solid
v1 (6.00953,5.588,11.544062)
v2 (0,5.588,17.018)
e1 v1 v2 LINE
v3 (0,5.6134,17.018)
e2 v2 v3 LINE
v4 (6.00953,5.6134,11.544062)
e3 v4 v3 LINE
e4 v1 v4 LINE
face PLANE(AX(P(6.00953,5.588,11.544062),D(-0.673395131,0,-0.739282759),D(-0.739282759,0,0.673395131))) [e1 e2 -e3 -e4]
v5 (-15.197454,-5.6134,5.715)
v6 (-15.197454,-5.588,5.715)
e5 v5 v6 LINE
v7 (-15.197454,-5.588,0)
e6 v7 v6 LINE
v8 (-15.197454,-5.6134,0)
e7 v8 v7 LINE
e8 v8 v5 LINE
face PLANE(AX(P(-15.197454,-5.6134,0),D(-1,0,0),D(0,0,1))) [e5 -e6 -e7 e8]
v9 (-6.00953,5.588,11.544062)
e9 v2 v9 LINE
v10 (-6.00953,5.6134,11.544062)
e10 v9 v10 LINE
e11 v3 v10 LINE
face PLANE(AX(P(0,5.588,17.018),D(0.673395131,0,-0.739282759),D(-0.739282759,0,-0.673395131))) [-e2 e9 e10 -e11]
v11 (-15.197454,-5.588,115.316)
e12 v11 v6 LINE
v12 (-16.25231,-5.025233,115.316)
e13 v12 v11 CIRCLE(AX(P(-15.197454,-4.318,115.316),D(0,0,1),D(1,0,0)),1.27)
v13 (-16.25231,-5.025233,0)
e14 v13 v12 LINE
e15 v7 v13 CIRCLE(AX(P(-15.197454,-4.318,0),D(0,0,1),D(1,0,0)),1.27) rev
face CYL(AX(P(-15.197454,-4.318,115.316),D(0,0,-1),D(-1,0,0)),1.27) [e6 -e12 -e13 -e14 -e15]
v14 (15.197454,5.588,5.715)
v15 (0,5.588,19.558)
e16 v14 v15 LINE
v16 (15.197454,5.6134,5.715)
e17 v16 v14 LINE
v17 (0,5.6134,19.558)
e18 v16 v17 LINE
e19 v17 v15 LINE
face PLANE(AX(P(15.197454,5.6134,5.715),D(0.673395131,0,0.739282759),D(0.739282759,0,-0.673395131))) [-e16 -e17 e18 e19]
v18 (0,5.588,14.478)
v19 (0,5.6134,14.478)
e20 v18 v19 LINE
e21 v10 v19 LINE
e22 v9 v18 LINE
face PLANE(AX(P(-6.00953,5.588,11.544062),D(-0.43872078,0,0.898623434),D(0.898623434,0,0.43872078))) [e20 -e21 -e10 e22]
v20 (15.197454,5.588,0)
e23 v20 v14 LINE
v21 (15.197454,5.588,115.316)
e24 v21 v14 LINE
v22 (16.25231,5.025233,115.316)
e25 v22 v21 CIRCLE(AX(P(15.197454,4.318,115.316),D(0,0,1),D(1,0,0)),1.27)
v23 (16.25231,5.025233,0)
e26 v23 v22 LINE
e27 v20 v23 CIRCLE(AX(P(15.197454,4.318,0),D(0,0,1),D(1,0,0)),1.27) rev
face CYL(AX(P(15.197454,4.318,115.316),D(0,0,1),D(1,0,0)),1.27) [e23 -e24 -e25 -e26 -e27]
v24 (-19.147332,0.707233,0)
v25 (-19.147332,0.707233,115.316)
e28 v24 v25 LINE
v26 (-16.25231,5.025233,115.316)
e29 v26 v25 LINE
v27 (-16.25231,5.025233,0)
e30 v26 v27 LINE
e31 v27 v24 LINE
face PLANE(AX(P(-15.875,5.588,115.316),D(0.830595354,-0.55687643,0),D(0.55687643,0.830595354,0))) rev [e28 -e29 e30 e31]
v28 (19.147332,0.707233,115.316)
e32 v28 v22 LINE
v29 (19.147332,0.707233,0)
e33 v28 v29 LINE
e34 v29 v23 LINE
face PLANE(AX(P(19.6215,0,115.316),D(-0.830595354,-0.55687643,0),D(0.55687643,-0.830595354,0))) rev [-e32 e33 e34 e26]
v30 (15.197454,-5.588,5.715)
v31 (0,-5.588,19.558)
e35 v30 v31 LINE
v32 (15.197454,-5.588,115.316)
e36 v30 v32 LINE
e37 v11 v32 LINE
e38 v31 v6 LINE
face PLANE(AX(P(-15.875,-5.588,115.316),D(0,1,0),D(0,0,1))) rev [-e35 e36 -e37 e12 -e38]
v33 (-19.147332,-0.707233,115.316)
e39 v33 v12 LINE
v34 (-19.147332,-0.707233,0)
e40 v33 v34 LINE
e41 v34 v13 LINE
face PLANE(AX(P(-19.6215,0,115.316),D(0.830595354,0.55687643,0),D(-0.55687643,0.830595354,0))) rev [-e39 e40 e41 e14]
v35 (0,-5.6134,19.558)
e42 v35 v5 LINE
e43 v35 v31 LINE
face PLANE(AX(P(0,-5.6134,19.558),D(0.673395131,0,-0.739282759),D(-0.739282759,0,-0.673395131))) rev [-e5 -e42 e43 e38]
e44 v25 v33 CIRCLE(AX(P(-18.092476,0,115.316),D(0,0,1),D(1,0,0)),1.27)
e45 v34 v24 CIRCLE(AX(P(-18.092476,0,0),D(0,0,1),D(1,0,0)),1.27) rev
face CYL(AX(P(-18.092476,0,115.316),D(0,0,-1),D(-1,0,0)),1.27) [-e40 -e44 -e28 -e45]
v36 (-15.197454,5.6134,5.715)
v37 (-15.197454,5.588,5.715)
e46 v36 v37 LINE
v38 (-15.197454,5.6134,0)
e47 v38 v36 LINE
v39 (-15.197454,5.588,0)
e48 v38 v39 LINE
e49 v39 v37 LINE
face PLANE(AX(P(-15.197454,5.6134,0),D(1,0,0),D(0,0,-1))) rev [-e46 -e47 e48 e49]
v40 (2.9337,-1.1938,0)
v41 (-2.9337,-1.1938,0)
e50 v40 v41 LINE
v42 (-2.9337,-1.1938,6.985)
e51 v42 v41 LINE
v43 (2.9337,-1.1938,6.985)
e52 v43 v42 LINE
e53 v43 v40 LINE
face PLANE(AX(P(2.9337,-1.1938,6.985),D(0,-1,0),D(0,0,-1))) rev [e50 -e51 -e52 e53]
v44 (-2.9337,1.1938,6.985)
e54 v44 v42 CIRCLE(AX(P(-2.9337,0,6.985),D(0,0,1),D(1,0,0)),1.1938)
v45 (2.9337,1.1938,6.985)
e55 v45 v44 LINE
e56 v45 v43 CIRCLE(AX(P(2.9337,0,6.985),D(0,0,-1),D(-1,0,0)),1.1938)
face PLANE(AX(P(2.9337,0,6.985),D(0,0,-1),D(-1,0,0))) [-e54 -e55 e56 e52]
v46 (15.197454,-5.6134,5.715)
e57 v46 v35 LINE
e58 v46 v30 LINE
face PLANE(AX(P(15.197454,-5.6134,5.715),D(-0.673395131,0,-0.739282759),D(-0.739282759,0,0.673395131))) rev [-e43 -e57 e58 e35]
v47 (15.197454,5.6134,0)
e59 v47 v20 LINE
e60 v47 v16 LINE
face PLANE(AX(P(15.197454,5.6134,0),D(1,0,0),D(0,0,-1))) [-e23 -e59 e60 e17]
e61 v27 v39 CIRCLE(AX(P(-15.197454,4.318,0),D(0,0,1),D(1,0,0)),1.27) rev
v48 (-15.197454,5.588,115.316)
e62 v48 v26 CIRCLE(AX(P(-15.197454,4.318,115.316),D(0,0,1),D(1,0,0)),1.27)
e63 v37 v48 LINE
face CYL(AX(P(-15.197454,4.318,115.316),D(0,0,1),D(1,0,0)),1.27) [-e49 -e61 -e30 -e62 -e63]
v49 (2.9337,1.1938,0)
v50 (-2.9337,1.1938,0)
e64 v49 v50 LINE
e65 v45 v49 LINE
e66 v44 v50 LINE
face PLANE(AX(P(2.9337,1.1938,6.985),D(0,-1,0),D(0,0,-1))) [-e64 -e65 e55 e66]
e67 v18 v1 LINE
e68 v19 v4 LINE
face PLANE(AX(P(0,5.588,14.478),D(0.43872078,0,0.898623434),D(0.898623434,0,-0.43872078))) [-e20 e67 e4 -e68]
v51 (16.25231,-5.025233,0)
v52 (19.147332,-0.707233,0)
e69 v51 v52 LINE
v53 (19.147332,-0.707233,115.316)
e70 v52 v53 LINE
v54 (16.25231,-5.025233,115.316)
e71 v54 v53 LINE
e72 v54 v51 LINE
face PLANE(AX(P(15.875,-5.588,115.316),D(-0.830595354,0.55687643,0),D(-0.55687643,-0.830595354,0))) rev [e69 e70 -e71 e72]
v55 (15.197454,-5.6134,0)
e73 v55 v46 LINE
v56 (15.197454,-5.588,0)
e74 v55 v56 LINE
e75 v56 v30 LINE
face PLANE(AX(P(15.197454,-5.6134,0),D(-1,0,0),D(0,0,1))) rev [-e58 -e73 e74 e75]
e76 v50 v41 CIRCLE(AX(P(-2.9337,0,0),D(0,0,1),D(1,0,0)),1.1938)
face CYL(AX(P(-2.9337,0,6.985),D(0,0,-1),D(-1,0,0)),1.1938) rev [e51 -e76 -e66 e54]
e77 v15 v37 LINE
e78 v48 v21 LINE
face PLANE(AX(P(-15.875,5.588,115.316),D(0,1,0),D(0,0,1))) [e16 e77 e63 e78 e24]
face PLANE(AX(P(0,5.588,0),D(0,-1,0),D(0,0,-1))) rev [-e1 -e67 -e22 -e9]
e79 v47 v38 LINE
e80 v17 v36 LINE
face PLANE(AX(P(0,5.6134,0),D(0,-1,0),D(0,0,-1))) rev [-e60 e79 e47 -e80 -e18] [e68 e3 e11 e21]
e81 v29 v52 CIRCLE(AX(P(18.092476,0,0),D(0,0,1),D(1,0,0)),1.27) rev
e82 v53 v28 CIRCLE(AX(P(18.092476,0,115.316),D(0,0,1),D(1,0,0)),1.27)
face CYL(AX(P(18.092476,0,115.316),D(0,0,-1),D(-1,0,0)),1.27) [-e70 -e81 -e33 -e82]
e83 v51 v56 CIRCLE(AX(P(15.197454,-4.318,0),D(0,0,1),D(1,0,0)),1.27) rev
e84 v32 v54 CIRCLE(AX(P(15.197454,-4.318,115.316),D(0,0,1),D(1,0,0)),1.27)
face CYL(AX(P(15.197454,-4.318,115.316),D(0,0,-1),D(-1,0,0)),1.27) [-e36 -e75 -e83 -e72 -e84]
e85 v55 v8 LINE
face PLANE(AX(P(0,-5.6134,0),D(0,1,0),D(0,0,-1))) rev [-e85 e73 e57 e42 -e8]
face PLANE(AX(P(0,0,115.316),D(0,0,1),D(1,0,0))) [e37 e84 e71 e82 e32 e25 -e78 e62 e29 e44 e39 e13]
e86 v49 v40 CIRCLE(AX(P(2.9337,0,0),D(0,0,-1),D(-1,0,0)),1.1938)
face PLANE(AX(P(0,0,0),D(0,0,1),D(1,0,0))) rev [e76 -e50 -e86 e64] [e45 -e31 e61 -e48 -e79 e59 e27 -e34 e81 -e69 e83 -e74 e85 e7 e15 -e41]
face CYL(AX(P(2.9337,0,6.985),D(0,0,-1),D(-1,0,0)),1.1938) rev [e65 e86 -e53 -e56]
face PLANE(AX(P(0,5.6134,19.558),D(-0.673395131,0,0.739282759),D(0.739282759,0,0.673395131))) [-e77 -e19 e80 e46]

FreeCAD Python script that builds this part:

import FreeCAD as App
import Part
import Sketcher

V = App.Vector
Q = App.Units.Quantity


def edges_at(feature, points):
    """Names of the edges that pass closest to the given points."""
    edges = feature.Shape.Edges
    near = lambda p: min(range(len(edges)), key=lambda i: edges[i].distToShape(Part.Vertex(*p))[0])
    return sorted({f"Edge{near(p) + 1}" for p in points})

doc = App.newDocument("Part")
params = doc.addObject("Spreadsheet::Sheet", "Params")
for row, (alias, value) in enumerate([
    ("sketch1_width", "1.25 in"),
    ("pad1_length", "4.54 in"),
    ("sketch2_diameter", "0.094 in"),
    ("pocket1_length", "0.275 in"),
    ("sketch3_diameter", "0.094 in"),
    ("pocket2_length", "0.275 in"),
    ("sketch4_width", "0.231 in"),
    ("sketch4_height", "0.094 in"),
    ("pocket3_length", "0.275 in"),
    ("fillet_radius", "0.05 in"),
    ("sketch5_height", "0.225 in"),
    ("pad2_length", "0.001 in"),
    ("pocket4_length", "0.001 in"),
], start=1):
    params.set(f"A{row}", alias)
    params.set(f"B{row}", "=" + value)
    params.setAlias(f"B{row}", alias)

body = doc.addObject("PartDesign::Body", "Body")

# Sketch on XY plane
sketch1 = doc.addObject("Sketcher::SketchObject", "Sketch")
body.addObject(sketch1)
sketch1.AttachmentSupport = (doc.XY_Plane, [""])
sketch1.MapMode = "FlatFace"
sketch1.addGeometry(Part.LineSegment(V(-16, -6, 0), V(16, -6, 0)), False)
sketch1.addGeometry(Part.LineSegment(V(16, -6, 0), V(20, 0, 0)), False)
sketch1.addGeometry(Part.LineSegment(V(20, 0, 0), V(16, 6, 0)), False)
sketch1.addGeometry(Part.LineSegment(V(16, 6, 0), V(-16, 6, 0)), False)
sketch1.addGeometry(Part.LineSegment(V(-16, 6, 0), V(-20, 0, 0)), False)
sketch1.addGeometry(Part.LineSegment(V(-20, 0, 0), V(-16, -6, 0)), False)
sketch1.addConstraint(Sketcher.Constraint("Coincident", 0, 2, 1, 1))
sketch1.addConstraint(Sketcher.Constraint("Coincident", 1, 2, 2, 1))
sketch1.addConstraint(Sketcher.Constraint("Coincident", 2, 2, 3, 1))
sketch1.addConstraint(Sketcher.Constraint("Coincident", 3, 2, 4, 1))
sketch1.addConstraint(Sketcher.Constraint("Coincident", 4, 2, 5, 1))
sketch1.addConstraint(Sketcher.Constraint("Coincident", 5, 2, 0, 1))
sketch1.addConstraint(Sketcher.Constraint("Horizontal", 0))
sketch1.addConstraint(Sketcher.Constraint("Horizontal", 3))
sketch1.addConstraint(Sketcher.Constraint("Symmetric", 0, 2, 3, 2, -1, 1))
sketch1.addConstraint(Sketcher.Constraint("Symmetric", 1, 2, 4, 2, -1, 1))
sketch1.addConstraint(Sketcher.Constraint("PointOnObject", 1, 2, -1))
sketch1.addConstraint(Sketcher.Constraint("Parallel", 2, 5))
sketch1.addConstraint(Sketcher.Constraint("Vertical", 0, 2, 2, 2))
sketch1.addConstraint(Sketcher.Constraint("DistanceX", 0, 1, 0, 2, Q("1.25 in")))
sketch1.addConstraint(Sketcher.Constraint("DistanceY", 0, 2, -1, 1, Q("0.22 in")))
sketch1.addConstraint(Sketcher.Constraint("DistanceX", 4, 2, 1, 2, Q("1.545 in")))
sketch1.setExpression("Constraints[13]", "Params.sketch1_width")
pad1 = doc.addObject("PartDesign::Pad", "Pad")
body.addObject(pad1)
pad1.Profile = sketch1
pad1.setExpression("Length", "Params.pad1_length")

# Sketch on XY plane
sketch2 = doc.addObject("Sketcher::SketchObject", "Sketch001")
body.addObject(sketch2)
sketch2.AttachmentSupport = (doc.XY_Plane, [""])
sketch2.MapMode = "FlatFace"
sketch2.addGeometry(Part.Circle(V(2.9, 0, 0), V(0, 0, 1), 1.2), False)
sketch2.addConstraint(Sketcher.Constraint("PointOnObject", 0, 3, -1))
sketch2.addConstraint(Sketcher.Constraint("Diameter", 0, Q("0.094 in")))
sketch2.addConstraint(Sketcher.Constraint("DistanceX", -1, 1, 0, 3, Q("0.1155 in")))
sketch2.setExpression("Constraints[1]", "Params.sketch2_diameter")
pocket1 = doc.addObject("PartDesign::Pocket", "Pocket")
body.addObject(pocket1)
pocket1.Profile = sketch2
pocket1.setExpression("Length", "Params.pocket1_length")
pocket1.Reversed = True

# Sketch on XY plane
sketch3 = doc.addObject("Sketcher::SketchObject", "Sketch002")
body.addObject(sketch3)
sketch3.AttachmentSupport = (doc.XY_Plane, [""])
sketch3.MapMode = "FlatFace"
sketch3.addGeometry(Part.Circle(V(-2.9, 0, 0), V(0, 0, 1), 1.2), False)
sketch3.addConstraint(Sketcher.Constraint("PointOnObject", 0, 3, -1))
sketch3.addConstraint(Sketcher.Constraint("Diameter", 0, Q("0.094 in")))
sketch3.addConstraint(Sketcher.Constraint("DistanceX", 0, 3, -1, 1, Q("0.1155 in")))
sketch3.setExpression("Constraints[1]", "Params.sketch3_diameter")
pocket2 = doc.addObject("PartDesign::Pocket", "Pocket001")
body.addObject(pocket2)
pocket2.Profile = sketch3
pocket2.setExpression("Length", "Params.pocket2_length")
pocket2.Reversed = True

# Sketch on XY plane
sketch4 = doc.addObject("Sketcher::SketchObject", "Sketch003")
body.addObject(sketch4)
sketch4.AttachmentSupport = (doc.XY_Plane, [""])
sketch4.MapMode = "FlatFace"
sketch4.addGeometry(Part.LineSegment(V(2.9, 1.2, 0), V(2.9, -1.2, 0)), False)
sketch4.addGeometry(Part.LineSegment(V(2.9, -1.2, 0), V(-2.9, -1.2, 0)), False)
sketch4.addGeometry(Part.LineSegment(V(-2.9, -1.2, 0), V(-2.9, 1.2, 0)), False)
sketch4.addGeometry(Part.LineSegment(V(-2.9, 1.2, 0), V(2.9, 1.2, 0)), False)
sketch4.addConstraint(Sketcher.Constraint("Coincident", 0, 2, 1, 1))
sketch4.addConstraint(Sketcher.Constraint("Coincident", 1, 2, 2, 1))
sketch4.addConstraint(Sketcher.Constraint("Coincident", 2, 2, 3, 1))
sketch4.addConstraint(Sketcher.Constraint("Coincident", 3, 2, 0, 1))
sketch4.addConstraint(Sketcher.Constraint("Vertical", 0))
sketch4.addConstraint(Sketcher.Constraint("Horizontal", 1))
sketch4.addConstraint(Sketcher.Constraint("Vertical", 2))
sketch4.addConstraint(Sketcher.Constraint("Horizontal", 3))
sketch4.addConstraint(Sketcher.Constraint("Symmetric", 0, 2, 2, 2, -1, 1))
sketch4.addConstraint(Sketcher.Constraint("DistanceX", 1, 2, 1, 1, Q("0.231 in")))
sketch4.addConstraint(Sketcher.Constraint("DistanceY", 0, 2, 0, 1, Q("0.094 in")))
sketch4.setExpression("Constraints[9]", "Params.sketch4_width")
sketch4.setExpression("Constraints[10]", "Params.sketch4_height")
pocket3 = doc.addObject("PartDesign::Pocket", "Pocket002")
body.addObject(pocket3)
pocket3.Profile = sketch4
pocket3.setExpression("Length", "Params.pocket3_length")
pocket3.Reversed = True
doc.recompute()

fillet = doc.addObject("PartDesign::Fillet", "Fillet")
body.addObject(fillet)
fillet.Base = (pocket3, edges_at(pocket3, [
    (-15.875, 5.588, 57.658),
    (15.875, 5.588, 57.658),
    (19.622, 0, 57.658),
    (15.875, -5.588, 57.658),
    (-15.875, -5.588, 57.658),
    (-19.622, 0, 57.658),
]))
fillet.setExpression("Radius", "Params.fillet_radius")

# Sketch on XZ plane
sketch5 = doc.addObject("Sketcher::SketchObject", "Sketch004")
body.addObject(sketch5)
sketch5.AttachmentSupport = (doc.XZ_Plane, [""])
sketch5.MapMode = "FlatFace"
sketch5.AttachmentOffset = App.Placement(V(0, 0, -0.22 * 25.4), App.Rotation())
sketch5.addGeometry(Part.LineSegment(V(15, 0, 0), V(-15, 0, 0)), False)
sketch5.addGeometry(Part.LineSegment(V(-15, 0, 0), V(-15, 6, 0)), False)
sketch5.addGeometry(Part.LineSegment(V(-15, 6, 0), V(0, 20, 0)), False)
sketch5.addGeometry(Part.LineSegment(V(0, 20, 0), V(15, 6, 0)), False)
sketch5.addGeometry(Part.LineSegment(V(15, 6, 0), V(15, 0, 0)), False)
sketch5.addConstraint(Sketcher.Constraint("Coincident", 0, 2, 1, 1))
sketch5.addConstraint(Sketcher.Constraint("Coincident", 1, 2, 2, 1))
sketch5.addConstraint(Sketcher.Constraint("Coincident", 2, 2, 3, 1))
sketch5.addConstraint(Sketcher.Constraint("Coincident", 3, 2, 4, 1))
sketch5.addConstraint(Sketcher.Constraint("Coincident", 4, 2, 0, 1))
sketch5.addConstraint(Sketcher.Constraint("Horizontal", 0))
sketch5.addConstraint(Sketcher.Constraint("Vertical", 1))
sketch5.addConstraint(Sketcher.Constraint("Vertical", 4))
sketch5.addConstraint(Sketcher.Constraint("Symmetric", 0, 2, 4, 2, -1, 1))
sketch5.addConstraint(Sketcher.Constraint("PointOnObject", 2, 2, -2))
sketch5.addConstraint(Sketcher.Constraint("Horizontal", 1, 2, 3, 2))
sketch5.addConstraint(Sketcher.Constraint("DistanceY", 1, 1, 1, 2, Q("0.225 in")))
sketch5.addConstraint(Sketcher.Constraint("DistanceY", -1, 1, 2, 2, Q("0.77 in")))
sketch5.addConstraint(Sketcher.Constraint("DistanceX", 0, 2, 0, 1, Q("30.394907 mm")))
sketch5.setExpression("Constraints[11]", "Params.sketch5_height")
pad2 = doc.addObject("PartDesign::Pad", "Pad001")
body.addObject(pad2)
pad2.Profile = sketch5
pad2.setExpression("Length", "Params.pad2_length")
pad2.Reversed = True
doc.recompute()

mirrored = doc.addObject("PartDesign::Mirrored", "Mirrored")
body.addObject(mirrored)
mirrored.Originals = [pad2]
mirrored.MirrorPlane = (doc.XZ_Plane, [""])
body.Tip = mirrored

# Sketch on XZ plane
sketch6 = doc.addObject("Sketcher::SketchObject", "Sketch005")
body.addObject(sketch6)
sketch6.AttachmentSupport = (doc.XZ_Plane, [""])
sketch6.MapMode = "FlatFace"
sketch6.AttachmentOffset = App.Placement(V(0, 0, -0.221 * 25.4), App.Rotation())
sketch6.addGeometry(Part.LineSegment(V(-6, 12, 0), V(0, 17, 0)), False)
sketch6.addGeometry(Part.LineSegment(V(0, 17, 0), V(6, 12, 0)), False)
sketch6.addGeometry(Part.LineSegment(V(6, 12, 0), V(0, 14, 0)), False)
sketch6.addGeometry(Part.LineSegment(V(0, 14, 0), V(-6, 12, 0)), False)
sketch6.addConstraint(Sketcher.Constraint("Coincident", 0, 2, 1, 1))
sketch6.addConstraint(Sketcher.Constraint("Coincident", 1, 2, 2, 1))
sketch6.addConstraint(Sketcher.Constraint("Coincident", 2, 2, 3, 1))
sketch6.addConstraint(Sketcher.Constraint("Coincident", 3, 2, 0, 1))
sketch6.addConstraint(Sketcher.Constraint("Symmetric", 1, 2, 3, 2, -2))
sketch6.addConstraint(Sketcher.Constraint("PointOnObject", 0, 2, -2))
sketch6.addConstraint(Sketcher.Constraint("PointOnObject", 2, 2, -2))
sketch6.addConstraint(Sketcher.Constraint("DistanceY", 2, 2, 0, 2, Q("0.1 in")))
sketch6.addConstraint(Sketcher.Constraint("DistanceY", -1, 1, 0, 2, Q("0.67 in")))
sketch6.addConstraint(Sketcher.Constraint("DistanceX", -1, 1, 1, 2, Q("6.00953 mm")))
sketch6.addConstraint(Sketcher.Constraint("DistanceY", -1, 1, 1, 2, Q("11.544062 mm")))
pocket4 = doc.addObject("PartDesign::Pocket", "Pocket003")
body.addObject(pocket4)
pocket4.Profile = sketch6
pocket4.setExpression("Length", "Params.pocket4_length")
pocket4.Reversed = True

doc.recompute()
